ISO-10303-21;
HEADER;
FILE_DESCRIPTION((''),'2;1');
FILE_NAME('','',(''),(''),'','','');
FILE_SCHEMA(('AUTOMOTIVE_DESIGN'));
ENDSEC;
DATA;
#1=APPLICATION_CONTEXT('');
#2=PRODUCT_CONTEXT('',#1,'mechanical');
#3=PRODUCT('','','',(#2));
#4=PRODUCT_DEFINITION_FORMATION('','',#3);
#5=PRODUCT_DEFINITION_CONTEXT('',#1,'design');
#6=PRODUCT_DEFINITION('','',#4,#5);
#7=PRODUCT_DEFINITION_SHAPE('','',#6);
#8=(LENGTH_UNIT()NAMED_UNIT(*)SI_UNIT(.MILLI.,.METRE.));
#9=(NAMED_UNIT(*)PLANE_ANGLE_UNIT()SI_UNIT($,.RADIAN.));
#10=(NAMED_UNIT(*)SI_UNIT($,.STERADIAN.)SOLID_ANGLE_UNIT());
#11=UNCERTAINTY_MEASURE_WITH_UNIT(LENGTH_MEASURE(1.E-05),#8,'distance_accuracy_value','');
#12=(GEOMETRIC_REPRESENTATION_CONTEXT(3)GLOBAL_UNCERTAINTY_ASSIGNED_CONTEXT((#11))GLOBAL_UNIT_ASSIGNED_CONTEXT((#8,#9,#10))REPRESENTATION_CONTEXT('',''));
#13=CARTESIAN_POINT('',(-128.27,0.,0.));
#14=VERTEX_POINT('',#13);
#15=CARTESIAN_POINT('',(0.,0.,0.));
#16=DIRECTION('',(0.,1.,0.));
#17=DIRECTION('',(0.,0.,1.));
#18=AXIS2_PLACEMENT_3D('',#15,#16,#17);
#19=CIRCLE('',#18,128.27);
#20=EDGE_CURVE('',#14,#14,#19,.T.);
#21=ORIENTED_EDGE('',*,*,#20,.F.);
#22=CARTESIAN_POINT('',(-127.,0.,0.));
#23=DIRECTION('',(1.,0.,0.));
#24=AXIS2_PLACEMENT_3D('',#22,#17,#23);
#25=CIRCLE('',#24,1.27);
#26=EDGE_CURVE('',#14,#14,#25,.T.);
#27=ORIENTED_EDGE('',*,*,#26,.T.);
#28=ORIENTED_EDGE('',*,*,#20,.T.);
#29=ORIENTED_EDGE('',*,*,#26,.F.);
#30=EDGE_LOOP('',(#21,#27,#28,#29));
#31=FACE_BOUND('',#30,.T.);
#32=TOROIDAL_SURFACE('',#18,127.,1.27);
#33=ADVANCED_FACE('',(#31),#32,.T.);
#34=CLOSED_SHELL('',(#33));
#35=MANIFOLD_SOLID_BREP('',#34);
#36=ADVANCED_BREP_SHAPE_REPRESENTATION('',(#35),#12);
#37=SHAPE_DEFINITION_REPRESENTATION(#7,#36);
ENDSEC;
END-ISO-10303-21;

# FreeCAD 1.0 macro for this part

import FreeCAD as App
import Part
import Sketcher
from FreeCAD import Vector
Q = App.Units.Quantity

doc = App.newDocument("Part")
body = doc.addObject("PartDesign::Body", "Body")

# Sketch on XY plane
sketch1 = body.newObject("Sketcher::SketchObject", "Sketch")
sketch1.AttachmentSupport = (doc.getObject("XY_Plane"), [""])
sketch1.MapMode = "FlatFace"
sketch1.addGeometry(Part.Circle(Vector(-127, 0, 0), Vector(0, 0, 1), 1.27), False)
sketch1.addConstraint([
    Sketcher.Constraint("PointOnObject", 0, 3, -1),
    Sketcher.Constraint("Diameter", 0, Q("0.1 in")),
    Sketcher.Constraint("DistanceX", 0, 3, -1, 1, Q("5 in")),
])

# Sketch on XZ plane
sketch2 = body.newObject("Sketcher::SketchObject", "Sketch001")
sketch2.AttachmentSupport = (doc.getObject("XZ_Plane"), [""])
sketch2.MapMode = "FlatFace"
sketch2.addGeometry(Part.Circle(Vector(0, 0, 0), Vector(0, 0, 1), 127), False)
sketch2.addConstraint([
    Sketcher.Constraint("Coincident", 0, 3, -1, 1),
    Sketcher.Constraint("Diameter", 0, Q("10 in")),
])
doc.recompute()

additivepipe = body.newObject("PartDesign::AdditivePipe", "AdditivePipe")
additivepipe.Profile = sketch1
additivepipe.Spine = (sketch2, ["Edge1"])

doc.recompute()
